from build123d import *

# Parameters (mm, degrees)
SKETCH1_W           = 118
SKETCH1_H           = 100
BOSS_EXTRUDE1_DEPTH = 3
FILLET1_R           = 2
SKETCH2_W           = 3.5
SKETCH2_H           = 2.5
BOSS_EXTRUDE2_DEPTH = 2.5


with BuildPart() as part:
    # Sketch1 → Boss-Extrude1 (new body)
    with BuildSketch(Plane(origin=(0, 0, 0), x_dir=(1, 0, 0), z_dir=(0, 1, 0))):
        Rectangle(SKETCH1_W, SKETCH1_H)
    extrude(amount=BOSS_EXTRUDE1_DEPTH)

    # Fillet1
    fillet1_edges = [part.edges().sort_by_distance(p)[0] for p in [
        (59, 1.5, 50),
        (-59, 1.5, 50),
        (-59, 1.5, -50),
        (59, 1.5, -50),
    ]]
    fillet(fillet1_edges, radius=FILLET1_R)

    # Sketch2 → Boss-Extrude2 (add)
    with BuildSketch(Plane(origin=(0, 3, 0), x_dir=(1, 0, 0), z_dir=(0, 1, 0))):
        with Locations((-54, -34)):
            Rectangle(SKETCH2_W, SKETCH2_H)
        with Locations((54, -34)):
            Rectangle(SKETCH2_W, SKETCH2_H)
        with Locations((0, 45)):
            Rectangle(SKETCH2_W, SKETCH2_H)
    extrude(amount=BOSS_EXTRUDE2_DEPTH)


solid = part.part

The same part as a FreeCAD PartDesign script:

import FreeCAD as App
import Part
import Sketcher

V = App.Vector
Q = App.Units.Quantity


def edges_at(feature, points):
    """Names of the edges that pass closest to the given points."""
    edges = feature.Shape.Edges
    near = lambda p: min(range(len(edges)), key=lambda i: edges[i].distToShape(Part.Vertex(*p))[0])
    return sorted({f"Edge{near(p) + 1}" for p in points})


def add_polygon(sketch, points):
    """Adds a closed chain of lines whose ends are joined by coincident constraints."""
    first, n = sketch.GeometryCount, len(points)
    for a, b in zip(points, points[1:] + points[:1]):
        sketch.addGeometry(Part.LineSegment(App.Vector(*a, 0), App.Vector(*b, 0)), False)
    for i in range(n):
        sketch.addConstraint(Sketcher.Constraint("Coincident", first + i, 2, first + (i + 1) % n, 1))

doc = App.newDocument("Part")
body = doc.addObject("PartDesign::Body", "Body")

# Sketch on XZ plane
sketch1 = body.newObject("Sketcher::SketchObject", "Sketch")
sketch1.AttachmentSupport = (doc.getObject("XZ_Plane"), [""])
sketch1.MapMode = "FlatFace"
add_polygon(sketch1, [(-59, -50), (-59, 50), (59, 50), (59, -50)])  # lines 0-3
sketch1.addConstraint(Sketcher.Constraint("Vertical", 0))
sketch1.addConstraint(Sketcher.Constraint("Horizontal", 1))
sketch1.addConstraint(Sketcher.Constraint("Vertical", 2))
sketch1.addConstraint(Sketcher.Constraint("Horizontal", 3))
sketch1.addConstraint(Sketcher.Constraint("Symmetric", 0, 2, 2, 2, -1, 1))
sketch1.addConstraint(Sketcher.Constraint("DistanceX", 1, 1, 1, 2, Q("118 mm")))
sketch1.addConstraint(Sketcher.Constraint("DistanceY", 0, 1, 0, 2, Q("100 mm")))
pad1 = body.newObject("PartDesign::Pad", "Pad")
pad1.Profile = sketch1
pad1.Length = 3
pad1.Reversed = True
doc.recompute()

fillet = body.newObject("PartDesign::Fillet", "Fillet")
fillet.Base = (pad1, edges_at(pad1, [
    (59, 1.5, 50),
    (-59, 1.5, 50),
    (-59, 1.5, -50),
    (59, 1.5, -50),
]))
fillet.Radius = 2

# Sketch on XZ plane
sketch2 = body.newObject("Sketcher::SketchObject", "Sketch001")
sketch2.AttachmentSupport = (doc.getObject("XZ_Plane"), [""])
sketch2.MapMode = "FlatFace"
sketch2.AttachmentOffset = App.Placement(V(0, 0, -3), App.Rotation())
add_polygon(sketch2, [(-55.8, 32.8), (-55.8, 35.2), (-52.2, 35.2), (-52.2, 32.8)])  # lines 0-3
add_polygon(sketch2, [(52.2, 32.8), (52.2, 35.2), (55.8, 35.2), (55.8, 32.8)])  # lines 4-7
add_polygon(sketch2, [(-1.8, -46.2), (-1.8, -43.8), (1.8, -43.8), (1.8, -46.2)])  # lines 8-11
sketch2.addConstraint(Sketcher.Constraint("Vertical", 0))
sketch2.addConstraint(Sketcher.Constraint("Horizontal", 1))
sketch2.addConstraint(Sketcher.Constraint("Vertical", 2))
sketch2.addConstraint(Sketcher.Constraint("Horizontal", 3))
sketch2.addConstraint(Sketcher.Constraint("Vertical", 4))
sketch2.addConstraint(Sketcher.Constraint("Horizontal", 5))
sketch2.addConstraint(Sketcher.Constraint("Vertical", 6))
sketch2.addConstraint(Sketcher.Constraint("Horizontal", 7))
sketch2.addConstraint(Sketcher.Constraint("Vertical", 8))
sketch2.addConstraint(Sketcher.Constraint("Horizontal", 9))
sketch2.addConstraint(Sketcher.Constraint("Vertical", 10))
sketch2.addConstraint(Sketcher.Constraint("Horizontal", 11))
sketch2.addConstraint(Sketcher.Constraint("Symmetric", 1, 2, 4, 2, -2))
sketch2.addConstraint(Sketcher.Constraint("Symmetric", 3, 2, 6, 2, -2))
sketch2.addConstraint(Sketcher.Constraint("Equal", 7, 9))
sketch2.addConstraint(Sketcher.Constraint("Equal", 6, 8))
sketch2.addConstraint(Sketcher.Constraint("DistanceX", 1, 1, 1, 2, Q("3.5 mm")))
sketch2.addConstraint(Sketcher.Constraint("DistanceY", 0, 1, 0, 2, Q("2.5 mm")))
sketch2.addConstraint(Sketcher.Constraint("DistanceX", 0, 2, 4, 2, Q("108 mm")))
sketch2.addConstraint(Sketcher.Constraint("DistanceX", 3, 2, 8, 2, Q("54 mm")))
sketch2.addConstraint(Sketcher.Constraint("DistanceY", 8, 2, 1, 2, Q("79 mm")))
sketch2.addConstraint(Sketcher.Constraint("DistanceY", -1, 1, 0, 2, Q("35.25 mm")))
pad2 = body.newObject("PartDesign::Pad", "Pad001")
pad2.Profile = sketch2
pad2.Length = 2.5
pad2.Reversed = True

doc.recompute()
